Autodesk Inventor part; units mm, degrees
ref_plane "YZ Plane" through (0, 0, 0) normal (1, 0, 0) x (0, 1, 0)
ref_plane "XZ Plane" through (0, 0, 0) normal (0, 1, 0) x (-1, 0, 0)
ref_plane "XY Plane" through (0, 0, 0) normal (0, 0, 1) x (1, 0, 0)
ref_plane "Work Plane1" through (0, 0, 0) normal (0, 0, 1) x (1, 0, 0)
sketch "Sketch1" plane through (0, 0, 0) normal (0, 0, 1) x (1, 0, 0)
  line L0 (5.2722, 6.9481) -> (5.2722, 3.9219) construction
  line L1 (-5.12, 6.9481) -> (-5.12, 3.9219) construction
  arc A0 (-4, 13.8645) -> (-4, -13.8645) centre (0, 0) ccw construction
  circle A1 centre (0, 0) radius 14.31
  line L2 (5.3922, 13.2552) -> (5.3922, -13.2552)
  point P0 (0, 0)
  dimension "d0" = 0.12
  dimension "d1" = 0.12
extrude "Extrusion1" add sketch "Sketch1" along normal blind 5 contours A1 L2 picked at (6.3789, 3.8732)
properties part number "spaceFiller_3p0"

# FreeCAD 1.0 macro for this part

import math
import FreeCAD as App
import Part
import Sketcher
from FreeCAD import Vector

doc = App.newDocument("Part")
body = doc.addObject("PartDesign::Body", "Body")

# Sketch on XY plane
sketch1 = doc.addObject("Sketcher::SketchObject", "Sketch")
body.addObject(sketch1)
sketch1.AttachmentSupport = (doc.XY_Plane, [""])
sketch1.MapMode = "FlatFace"
sketch1.addGeometry(Part.ArcOfCircle(Part.Circle(Vector(0, 0, 0), Vector(0, 0, 1), 14.31), math.radians(-67.863565), math.radians(67.863565)), False)
sketch1.addGeometry(Part.LineSegment(Vector(5.3922, -13.2552, 0), Vector(5.3922, 13.2552, 0)), False)
sketch1.addConstraint(Sketcher.Constraint("Coincident", 0, 1, 1, 1))
sketch1.addConstraint(Sketcher.Constraint("Coincident", 1, 2, 0, 2))
sketch1.addConstraint(Sketcher.Constraint("Vertical", 1))
sketch1.addConstraint(Sketcher.Constraint("Coincident", 0, 3, -1, 1))
sketch1.addConstraint(Sketcher.Constraint("Radius", 0, 14.31))
sketch1.addConstraint(Sketcher.Constraint("DistanceY", 1, 1, 1, 2, 26.5104))
pad1 = doc.addObject("PartDesign::Pad", "Pad")
body.addObject(pad1)
pad1.Profile = sketch1
pad1.Length = 5

doc.recompute()
